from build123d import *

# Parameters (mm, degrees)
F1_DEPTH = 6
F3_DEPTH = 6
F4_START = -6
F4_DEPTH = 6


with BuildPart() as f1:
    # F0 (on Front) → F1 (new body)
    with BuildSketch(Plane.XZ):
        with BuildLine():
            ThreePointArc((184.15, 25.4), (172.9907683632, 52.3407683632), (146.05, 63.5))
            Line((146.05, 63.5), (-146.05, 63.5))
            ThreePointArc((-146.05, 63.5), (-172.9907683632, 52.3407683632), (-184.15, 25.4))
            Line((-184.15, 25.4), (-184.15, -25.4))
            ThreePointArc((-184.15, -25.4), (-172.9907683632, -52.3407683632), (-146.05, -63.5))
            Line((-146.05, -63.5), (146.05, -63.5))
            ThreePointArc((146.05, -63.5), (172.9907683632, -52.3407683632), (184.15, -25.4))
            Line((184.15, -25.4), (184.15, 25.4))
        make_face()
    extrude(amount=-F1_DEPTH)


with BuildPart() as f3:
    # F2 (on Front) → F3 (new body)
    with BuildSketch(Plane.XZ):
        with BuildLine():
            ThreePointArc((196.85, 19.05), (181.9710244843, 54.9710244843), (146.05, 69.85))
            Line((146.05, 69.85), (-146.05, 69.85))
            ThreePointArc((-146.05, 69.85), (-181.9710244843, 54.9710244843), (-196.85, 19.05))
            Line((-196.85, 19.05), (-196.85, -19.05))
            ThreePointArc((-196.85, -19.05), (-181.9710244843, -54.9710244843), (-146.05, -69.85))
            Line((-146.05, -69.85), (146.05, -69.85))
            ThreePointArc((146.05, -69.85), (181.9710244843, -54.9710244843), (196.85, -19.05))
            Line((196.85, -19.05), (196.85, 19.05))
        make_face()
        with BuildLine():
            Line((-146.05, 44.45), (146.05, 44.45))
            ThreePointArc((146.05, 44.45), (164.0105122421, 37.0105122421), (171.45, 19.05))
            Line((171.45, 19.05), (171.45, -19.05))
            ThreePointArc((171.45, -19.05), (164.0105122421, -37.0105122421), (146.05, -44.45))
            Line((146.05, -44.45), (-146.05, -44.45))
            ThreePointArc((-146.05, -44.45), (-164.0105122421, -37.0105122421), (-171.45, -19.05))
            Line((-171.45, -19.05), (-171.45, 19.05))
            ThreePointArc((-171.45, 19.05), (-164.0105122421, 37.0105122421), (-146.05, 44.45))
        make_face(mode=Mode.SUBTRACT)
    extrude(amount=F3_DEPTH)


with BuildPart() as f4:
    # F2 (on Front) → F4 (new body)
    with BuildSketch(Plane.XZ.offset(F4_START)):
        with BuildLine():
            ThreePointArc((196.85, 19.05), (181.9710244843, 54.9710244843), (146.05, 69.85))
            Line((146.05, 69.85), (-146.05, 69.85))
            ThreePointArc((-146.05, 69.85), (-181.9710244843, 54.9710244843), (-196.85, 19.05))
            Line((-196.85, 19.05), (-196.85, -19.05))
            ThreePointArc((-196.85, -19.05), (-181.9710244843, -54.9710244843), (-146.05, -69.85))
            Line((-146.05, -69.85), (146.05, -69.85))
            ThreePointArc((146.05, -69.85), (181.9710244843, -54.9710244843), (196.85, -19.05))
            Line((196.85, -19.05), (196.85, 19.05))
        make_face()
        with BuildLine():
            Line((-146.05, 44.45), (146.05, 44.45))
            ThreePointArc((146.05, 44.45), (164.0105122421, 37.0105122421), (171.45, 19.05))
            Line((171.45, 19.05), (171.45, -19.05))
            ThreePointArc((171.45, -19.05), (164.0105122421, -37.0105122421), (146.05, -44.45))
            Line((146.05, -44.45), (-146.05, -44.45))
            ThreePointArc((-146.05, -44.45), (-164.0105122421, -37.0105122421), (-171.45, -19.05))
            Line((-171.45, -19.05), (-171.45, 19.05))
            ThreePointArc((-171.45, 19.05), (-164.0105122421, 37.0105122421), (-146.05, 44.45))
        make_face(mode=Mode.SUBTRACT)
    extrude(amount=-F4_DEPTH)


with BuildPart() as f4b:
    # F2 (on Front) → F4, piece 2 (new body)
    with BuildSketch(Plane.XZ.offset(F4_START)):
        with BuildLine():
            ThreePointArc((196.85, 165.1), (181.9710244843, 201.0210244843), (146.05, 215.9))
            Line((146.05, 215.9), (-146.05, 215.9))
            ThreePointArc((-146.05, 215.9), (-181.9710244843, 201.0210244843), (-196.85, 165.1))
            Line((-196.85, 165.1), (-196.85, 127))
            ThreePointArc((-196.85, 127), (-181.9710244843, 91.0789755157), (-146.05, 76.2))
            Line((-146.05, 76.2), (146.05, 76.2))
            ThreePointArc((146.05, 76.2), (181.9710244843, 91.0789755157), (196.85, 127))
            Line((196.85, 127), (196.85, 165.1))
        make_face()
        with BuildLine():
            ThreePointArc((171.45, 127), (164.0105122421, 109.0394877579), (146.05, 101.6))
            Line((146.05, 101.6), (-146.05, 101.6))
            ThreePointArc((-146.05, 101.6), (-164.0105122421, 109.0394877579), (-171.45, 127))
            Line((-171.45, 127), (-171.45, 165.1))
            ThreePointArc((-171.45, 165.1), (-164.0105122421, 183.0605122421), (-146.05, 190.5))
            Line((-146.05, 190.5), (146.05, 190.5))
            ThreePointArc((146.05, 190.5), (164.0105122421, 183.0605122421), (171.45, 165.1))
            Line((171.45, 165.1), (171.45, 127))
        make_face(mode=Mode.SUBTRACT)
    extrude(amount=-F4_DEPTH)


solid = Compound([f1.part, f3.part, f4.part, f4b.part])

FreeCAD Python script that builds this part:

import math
import FreeCAD as App
import Part
import Sketcher
from FreeCAD import Vector
Q = App.Units.Quantity

doc = App.newDocument("Part")
body = doc.addObject("PartDesign::Body", "Body")

sketch1 = body.newObject("Sketcher::SketchObject", "Sketch")
sketch1.AttachmentSupport = (doc.getObject("XZ_Plane"), [""])
sketch1.MapMode = "FlatFace"
sketch1.addGeometry([
    Part.ArcOfCircle(Part.Circle(Vector(146.05, 25.4, 0), Vector(0, 0, 1), 38.1), math.radians(0), math.radians(90)),
    Part.LineSegment(Vector(146.05, 63.5, 0), Vector(-146.05, 63.5, 0)),
    Part.ArcOfCircle(Part.Circle(Vector(-146.05, 25.4, 0), Vector(0, 0, 1), 38.1), math.radians(90), math.radians(180)),
    Part.LineSegment(Vector(-184.15, 25.4, 0), Vector(-184.15, -25.4, 0)),
    Part.ArcOfCircle(Part.Circle(Vector(-146.05, -25.4, 0), Vector(0, 0, 1), 38.1), math.radians(180), math.radians(270)),
    Part.LineSegment(Vector(-146.05, -63.5, 0), Vector(146.05, -63.5, 0)),
    Part.ArcOfCircle(Part.Circle(Vector(146.05, -25.4, 0), Vector(0, 0, 1), 38.1), math.radians(-90), math.radians(0)),
    Part.LineSegment(Vector(184.15, -25.4, 0), Vector(184.15, 25.4, 0)),
], False)
sketch1.addConstraint([
    Sketcher.Constraint("Tangent", 0, 2, 1, 1),
    Sketcher.Constraint("Tangent", 1, 2, 2, 1),
    Sketcher.Constraint("Tangent", 2, 2, 3, 1),
    Sketcher.Constraint("Tangent", 3, 2, 4, 1),
    Sketcher.Constraint("Tangent", 4, 2, 5, 1),
    Sketcher.Constraint("Tangent", 5, 2, 6, 1),
    Sketcher.Constraint("Tangent", 6, 2, 7, 1),
    Sketcher.Constraint("Tangent", 7, 2, 0, 1),
    Sketcher.Constraint("Horizontal", 1),
    Sketcher.Constraint("Vertical", 3),
    Sketcher.Constraint("Horizontal", 5),
    Sketcher.Constraint("Vertical", 7),
    Sketcher.Constraint("Equal", 0, 2),
    Sketcher.Constraint("Equal", 2, 4),
    Sketcher.Constraint("Equal", 4, 6),
    Sketcher.Constraint("Symmetric", 0, 3, 4, 3, -1, 1),
    Sketcher.Constraint("Radius", 0, Q("1.5 in")),
    Sketcher.Constraint("DistanceY", 3, 2, 3, 1, Q("2 in")),
    Sketcher.Constraint("DistanceX", 1, 2, 1, 1, Q("11.5 in")),
])
pad1 = body.newObject("PartDesign::Pad", "Pad")
pad1.Profile = sketch1
pad1.Length = 6
pad1.Reversed = True
body2 = doc.addObject("PartDesign::Body", "Body001")

sketch2 = body2.newObject("Sketcher::SketchObject", "Sketch001")
sketch2.AttachmentSupport = (doc.getObject("XZ_Plane001"), [""])
sketch2.MapMode = "FlatFace"
sketch2.addGeometry([
    Part.ArcOfCircle(Part.Circle(Vector(146.05, 19.05, 0), Vector(0, 0, 1), 50.8), math.radians(0), math.radians(90)),
    Part.LineSegment(Vector(146.05, 69.85, 0), Vector(-146.05, 69.85, 0)),
    Part.ArcOfCircle(Part.Circle(Vector(-146.05, 19.05, 0), Vector(0, 0, 1), 50.8), math.radians(90), math.radians(180)),
    Part.LineSegment(Vector(-196.85, 19.05, 0), Vector(-196.85, -19.05, 0)),
    Part.ArcOfCircle(Part.Circle(Vector(-146.05, -19.05, 0), Vector(0, 0, 1), 50.8), math.radians(180), math.radians(270)),
    Part.LineSegment(Vector(-146.05, -69.85, 0), Vector(146.05, -69.85, 0)),
    Part.ArcOfCircle(Part.Circle(Vector(146.05, -19.05, 0), Vector(0, 0, 1), 50.8), math.radians(-90), math.radians(0)),
    Part.LineSegment(Vector(196.85, -19.05, 0), Vector(196.85, 19.05, 0)),
    Part.ArcOfCircle(Part.Circle(Vector(-146.05, 19.05, 0), Vector(0, 0, 1), 25.4), math.radians(90), math.radians(180)),
    Part.LineSegment(Vector(-146.05, 44.45, 0), Vector(146.05, 44.45, 0)),
    Part.ArcOfCircle(Part.Circle(Vector(146.05, 19.05, 0), Vector(0, 0, 1), 25.4), math.radians(0), math.radians(90)),
    Part.LineSegment(Vector(171.45, 19.05, 0), Vector(171.45, -19.05, 0)),
    Part.ArcOfCircle(Part.Circle(Vector(146.05, -19.05, 0), Vector(0, 0, 1), 25.4), math.radians(-90), math.radians(0)),
    Part.LineSegment(Vector(146.05, -44.45, 0), Vector(-146.05, -44.45, 0)),
    Part.ArcOfCircle(Part.Circle(Vector(-146.05, -19.05, 0), Vector(0, 0, 1), 25.4), math.radians(180), math.radians(270)),
    Part.LineSegment(Vector(-171.45, -19.05, 0), Vector(-171.45, 19.05, 0)),
], False)
sketch2.addConstraint([
    Sketcher.Constraint("Tangent", 0, 2, 1, 1),
    Sketcher.Constraint("Tangent", 1, 2, 2, 1),
    Sketcher.Constraint("Tangent", 2, 2, 3, 1),
    Sketcher.Constraint("Tangent", 3, 2, 4, 1),
    Sketcher.Constraint("Tangent", 4, 2, 5, 1),
    Sketcher.Constraint("Tangent", 5, 2, 6, 1),
    Sketcher.Constraint("Tangent", 6, 2, 7, 1),
    Sketcher.Constraint("Tangent", 7, 2, 0, 1),
    Sketcher.Constraint("Tangent", 8, 1, 9, 1),
    Sketcher.Constraint("Tangent", 9, 2, 10, 2),
    Sketcher.Constraint("Tangent", 10, 1, 11, 1),
    Sketcher.Constraint("Tangent", 11, 2, 12, 2),
    Sketcher.Constraint("Tangent", 12, 1, 13, 1),
    Sketcher.Constraint("Tangent", 13, 2, 14, 2),
    Sketcher.Constraint("Tangent", 14, 1, 15, 1),
    Sketcher.Constraint("Tangent", 15, 2, 8, 2),
    Sketcher.Constraint("Horizontal", 1),
    Sketcher.Constraint("Vertical", 3),
    Sketcher.Constraint("Horizontal", 5),
    Sketcher.Constraint("Vertical", 7),
    Sketcher.Constraint("Horizontal", 9),
    Sketcher.Constraint("Vertical", 11),
    Sketcher.Constraint("Horizontal", 13),
    Sketcher.Constraint("Vertical", 15),
    Sketcher.Constraint("Coincident", 8, 3, 2, 3),
    Sketcher.Constraint("Coincident", 10, 3, 0, 3),
    Sketcher.Constraint("Coincident", 12, 3, 6, 3),
    Sketcher.Constraint("Equal", 0, 2),
    Sketcher.Constraint("Equal", 2, 4),
    Sketcher.Constraint("Equal", 4, 6),
    Sketcher.Constraint("Equal", 12, 14),
    Sketcher.Constraint("Symmetric", 0, 3, 4, 3, -1, 1),
    Sketcher.Constraint("Radius", 0, Q("2 in")),
    Sketcher.Constraint("Radius", 8, Q("1 in")),
    Sketcher.Constraint("DistanceX", 1, 2, 1, 1, Q("11.5 in")),
    Sketcher.Constraint("DistanceY", 3, 2, 3, 1, Q("1.5 in")),
])
pad2 = body2.newObject("PartDesign::Pad", "Pad001")
pad2.Profile = sketch2
pad2.Length = 6
body3 = doc.addObject("PartDesign::Body", "Body002")

sketch3 = body3.newObject("Sketcher::SketchObject", "Sketch002")
sketch3.AttachmentSupport = (doc.getObject("XZ_Plane002"), [""])
sketch3.MapMode = "FlatFace"
sketch3.AttachmentOffset = App.Placement(Vector(0, 0, -6), App.Rotation())
sketch3.addGeometry([
    Part.ArcOfCircle(Part.Circle(Vector(146.05, 19.05, 0), Vector(0, 0, 1), 50.8), math.radians(0), math.radians(90)),
    Part.LineSegment(Vector(146.05, 69.85, 0), Vector(-146.05, 69.85, 0)),
    Part.ArcOfCircle(Part.Circle(Vector(-146.05, 19.05, 0), Vector(0, 0, 1), 50.8), math.radians(90), math.radians(180)),
    Part.LineSegment(Vector(-196.85, 19.05, 0), Vector(-196.85, -19.05, 0)),
    Part.ArcOfCircle(Part.Circle(Vector(-146.05, -19.05, 0), Vector(0, 0, 1), 50.8), math.radians(180), math.radians(270)),
    Part.LineSegment(Vector(-146.05, -69.85, 0), Vector(146.05, -69.85, 0)),
    Part.ArcOfCircle(Part.Circle(Vector(146.05, -19.05, 0), Vector(0, 0, 1), 50.8), math.radians(-90), math.radians(0)),
    Part.LineSegment(Vector(196.85, -19.05, 0), Vector(196.85, 19.05, 0)),
    Part.ArcOfCircle(Part.Circle(Vector(-146.05, 19.05, 0), Vector(0, 0, 1), 25.4), math.radians(90), math.radians(180)),
    Part.LineSegment(Vector(-146.05, 44.45, 0), Vector(146.05, 44.45, 0)),
    Part.ArcOfCircle(Part.Circle(Vector(146.05, 19.05, 0), Vector(0, 0, 1), 25.4), math.radians(0), math.radians(90)),
    Part.LineSegment(Vector(171.45, 19.05, 0), Vector(171.45, -19.05, 0)),
    Part.ArcOfCircle(Part.Circle(Vector(146.05, -19.05, 0), Vector(0, 0, 1), 25.4), math.radians(-90), math.radians(0)),
    Part.LineSegment(Vector(146.05, -44.45, 0), Vector(-146.05, -44.45, 0)),
    Part.ArcOfCircle(Part.Circle(Vector(-146.05, -19.05, 0), Vector(0, 0, 1), 25.4), math.radians(180), math.radians(270)),
    Part.LineSegment(Vector(-171.45, -19.05, 0), Vector(-171.45, 19.05, 0)),
], False)
sketch3.addConstraint([
    Sketcher.Constraint("Tangent", 0, 2, 1, 1),
    Sketcher.Constraint("Tangent", 1, 2, 2, 1),
    Sketcher.Constraint("Tangent", 2, 2, 3, 1),
    Sketcher.Constraint("Tangent", 3, 2, 4, 1),
    Sketcher.Constraint("Tangent", 4, 2, 5, 1),
    Sketcher.Constraint("Tangent", 5, 2, 6, 1),
    Sketcher.Constraint("Tangent", 6, 2, 7, 1),
    Sketcher.Constraint("Tangent", 7, 2, 0, 1),
    Sketcher.Constraint("Tangent", 8, 1, 9, 1),
    Sketcher.Constraint("Tangent", 9, 2, 10, 2),
    Sketcher.Constraint("Tangent", 10, 1, 11, 1),
    Sketcher.Constraint("Tangent", 11, 2, 12, 2),
    Sketcher.Constraint("Tangent", 12, 1, 13, 1),
    Sketcher.Constraint("Tangent", 13, 2, 14, 2),
    Sketcher.Constraint("Tangent", 14, 1, 15, 1),
    Sketcher.Constraint("Tangent", 15, 2, 8, 2),
    Sketcher.Constraint("Horizontal", 1),
    Sketcher.Constraint("Vertical", 3),
    Sketcher.Constraint("Horizontal", 5),
    Sketcher.Constraint("Vertical", 7),
    Sketcher.Constraint("Horizontal", 9),
    Sketcher.Constraint("Vertical", 11),
    Sketcher.Constraint("Horizontal", 13),
    Sketcher.Constraint("Vertical", 15),
    Sketcher.Constraint("Coincident", 8, 3, 2, 3),
    Sketcher.Constraint("Coincident", 10, 3, 0, 3),
    Sketcher.Constraint("Coincident", 12, 3, 6, 3),
    Sketcher.Constraint("Equal", 0, 2),
    Sketcher.Constraint("Equal", 2, 4),
    Sketcher.Constraint("Equal", 4, 6),
    Sketcher.Constraint("Equal", 12, 14),
    Sketcher.Constraint("Symmetric", 0, 3, 4, 3, -1, 1),
    Sketcher.Constraint("Radius", 0, Q("2 in")),
    Sketcher.Constraint("Radius", 8, Q("1 in")),
    Sketcher.Constraint("DistanceX", 1, 2, 1, 1, Q("11.5 in")),
    Sketcher.Constraint("DistanceY", 3, 2, 3, 1, Q("1.5 in")),
])
pad3 = body3.newObject("PartDesign::Pad", "Pad002")
pad3.Profile = sketch3
pad3.Length = 6
pad3.Reversed = True
body4 = doc.addObject("PartDesign::Body", "Body003")

sketch4 = body4.newObject("Sketcher::SketchObject", "Sketch003")
sketch4.AttachmentSupport = (doc.getObject("XZ_Plane003"), [""])
sketch4.MapMode = "FlatFace"
sketch4.AttachmentOffset = App.Placement(Vector(0, 0, -6), App.Rotation())
sketch4.addGeometry([
    Part.ArcOfCircle(Part.Circle(Vector(146.05, 165.1, 0), Vector(0, 0, 1), 50.8), math.radians(0), math.radians(90)),
    Part.LineSegment(Vector(146.05, 215.9, 0), Vector(-146.05, 215.9, 0)),
    Part.ArcOfCircle(Part.Circle(Vector(-146.05, 165.1, 0), Vector(0, 0, 1), 50.8), math.radians(90), math.radians(180)),
    Part.LineSegment(Vector(-196.85, 165.1, 0), Vector(-196.85, 127, 0)),
    Part.ArcOfCircle(Part.Circle(Vector(-146.05, 127, 0), Vector(0, 0, 1), 50.8), math.radians(180), math.radians(270)),
    Part.LineSegment(Vector(-146.05, 76.2, 0), Vector(146.05, 76.2, 0)),
    Part.ArcOfCircle(Part.Circle(Vector(146.05, 127, 0), Vector(0, 0, 1), 50.8), math.radians(-90), math.radians(0)),
    Part.LineSegment(Vector(196.85, 127, 0), Vector(196.85, 165.1, 0)),
    Part.LineSegment(Vector(171.45, 165.1, 0), Vector(171.45, 127, 0)),
    Part.ArcOfCircle(Part.Circle(Vector(146.05, 127, 0), Vector(0, 0, 1), 25.4), math.radians(-90), math.radians(0)),
    Part.LineSegment(Vector(146.05, 101.6, 0), Vector(-146.05, 101.6, 0)),
    Part.ArcOfCircle(Part.Circle(Vector(-146.05, 127, 0), Vector(0, 0, 1), 25.4), math.radians(180), math.radians(270)),
    Part.LineSegment(Vector(-171.45, 127, 0), Vector(-171.45, 165.1, 0)),
    Part.ArcOfCircle(Part.Circle(Vector(-146.05, 165.1, 0), Vector(0, 0, 1), 25.4), math.radians(90), math.radians(180)),
    Part.LineSegment(Vector(-146.05, 190.5, 0), Vector(146.05, 190.5, 0)),
    Part.ArcOfCircle(Part.Circle(Vector(146.05, 165.1, 0), Vector(0, 0, 1), 25.4), math.radians(0), math.radians(90)),
], False)
sketch4.addConstraint([
    Sketcher.Constraint("Tangent", 0, 2, 1, 1),
    Sketcher.Constraint("Tangent", 1, 2, 2, 1),
    Sketcher.Constraint("Tangent", 2, 2, 3, 1),
    Sketcher.Constraint("Tangent", 3, 2, 4, 1),
    Sketcher.Constraint("Tangent", 4, 2, 5, 1),
    Sketcher.Constraint("Tangent", 5, 2, 6, 1),
    Sketcher.Constraint("Tangent", 6, 2, 7, 1),
    Sketcher.Constraint("Tangent", 7, 2, 0, 1),
    Sketcher.Constraint("Tangent", 8, 2, 9, 2),
    Sketcher.Constraint("Tangent", 9, 1, 10, 1),
    Sketcher.Constraint("Tangent", 10, 2, 11, 2),
    Sketcher.Constraint("Tangent", 11, 1, 12, 1),
    Sketcher.Constraint("Tangent", 12, 2, 13, 2),
    Sketcher.Constraint("Tangent", 13, 1, 14, 1),
    Sketcher.Constraint("Tangent", 14, 2, 15, 2),
    Sketcher.Constraint("Tangent", 15, 1, 8, 1),
    Sketcher.Constraint("Horizontal", 1),
    Sketcher.Constraint("Vertical", 3),
    Sketcher.Constraint("Horizontal", 5),
    Sketcher.Constraint("Vertical", 7),
    Sketcher.Constraint("Vertical", 8),
    Sketcher.Constraint("Horizontal", 10),
    Sketcher.Constraint("Vertical", 12),
    Sketcher.Constraint("Horizontal", 14),
    Sketcher.Constraint("Coincident", 9, 3, 6, 3),
    Sketcher.Constraint("Coincident", 11, 3, 4, 3),
    Sketcher.Constraint("Coincident", 13, 3, 2, 3),
    Sketcher.Constraint("Equal", 0, 2),
    Sketcher.Constraint("Equal", 2, 4),
    Sketcher.Constraint("Equal", 4, 6),
    Sketcher.Constraint("Equal", 13, 15),
    Sketcher.Constraint("Radius", 0, Q("2 in")),
    Sketcher.Constraint("Radius", 9, Q("1 in")),
    Sketcher.Constraint("DistanceX", 1, 2, 1, 1, Q("11.5 in")),
    Sketcher.Constraint("DistanceY", 3, 2, 3, 1, Q("1.5 in")),
    Sketcher.Constraint("DistanceY", -1, 1, 4, 3, Q("5 in")),
    Sketcher.Constraint("DistanceX", -1, 1, 0, 3, Q("5.75 in")),
])
pad4 = body4.newObject("PartDesign::Pad", "Pad003")
pad4.Profile = sketch4
pad4.Length = 6
pad4.Reversed = True

doc.recompute()
